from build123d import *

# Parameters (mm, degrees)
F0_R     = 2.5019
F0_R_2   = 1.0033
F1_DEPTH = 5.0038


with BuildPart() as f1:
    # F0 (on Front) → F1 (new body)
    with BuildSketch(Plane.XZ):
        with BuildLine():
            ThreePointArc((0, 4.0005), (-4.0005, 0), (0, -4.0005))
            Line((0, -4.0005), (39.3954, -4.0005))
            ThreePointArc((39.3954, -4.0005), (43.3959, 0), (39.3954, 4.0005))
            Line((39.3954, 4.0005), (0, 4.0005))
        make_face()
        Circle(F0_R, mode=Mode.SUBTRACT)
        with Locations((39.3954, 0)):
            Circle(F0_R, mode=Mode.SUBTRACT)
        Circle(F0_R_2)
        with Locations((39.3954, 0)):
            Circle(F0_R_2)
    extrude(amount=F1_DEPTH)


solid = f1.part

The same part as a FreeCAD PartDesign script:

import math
import FreeCAD as App
import Part
import Sketcher
from FreeCAD import Vector
Q = App.Units.Quantity

doc = App.newDocument("Part")
body = doc.addObject("PartDesign::Body", "Body")
body.AllowCompound = True

# Sketch on XZ plane
sketch1 = doc.addObject("Sketcher::SketchObject", "Sketch")
body.addObject(sketch1)
sketch1.AttachmentSupport = (doc.XZ_Plane, [""])
sketch1.MapMode = "FlatFace"
sketch1.addGeometry([
    Part.ArcOfCircle(Part.Circle(Vector(0, 0, 0), Vector(0, 0, 1), 4.0005), math.radians(90), math.radians(270)),  # 0
    Part.LineSegment(Vector(0, -4.0005, 0), Vector(39.3954, -4.0005, 0)),  # 1
    Part.ArcOfCircle(Part.Circle(Vector(39.3954, 0, 0), Vector(0, 0, 1), 4.0005), math.radians(-90), math.radians(90)),  # 2
    Part.LineSegment(Vector(39.3954, 4.0005, 0), Vector(0, 4.0005, 0)),  # 3
    Part.Circle(Vector(0, 0, 0), Vector(0, 0, 1), 2.5019),  # 4
    Part.Circle(Vector(39.3954, 0, 0), Vector(0, 0, 1), 2.5019),  # 5
    Part.Circle(Vector(0, 0, 0), Vector(0, 0, 1), 1.0033),  # 6
    Part.Circle(Vector(39.3954, 0, 0), Vector(0, 0, 1), 1.0033),  # 7
], False)
sketch1.addConstraint([
    Sketcher.Constraint("Tangent", 0, 2, 1, 1),
    Sketcher.Constraint("Tangent", 1, 2, 2, 1),
    Sketcher.Constraint("Tangent", 2, 2, 3, 1),
    Sketcher.Constraint("Tangent", 3, 2, 0, 1),
    Sketcher.Constraint("Horizontal", 1),
    Sketcher.Constraint("Horizontal", 3),
    Sketcher.Constraint("Coincident", 0, 3, -1, 1),
    Sketcher.Constraint("Coincident", 4, 3, -1, 1),
    Sketcher.Constraint("Coincident", 6, 3, -1, 1),
    Sketcher.Constraint("Coincident", 5, 3, 2, 3),
    Sketcher.Constraint("Coincident", 7, 3, 2, 3),
    Sketcher.Constraint("Equal", 4, 5),
    Sketcher.Constraint("Equal", 6, 7),
    Sketcher.Constraint("Diameter", 4, Q("0.197 in")),
    Sketcher.Constraint("Diameter", 6, Q("0.079 in")),
    Sketcher.Constraint("Radius", 0, Q("0.1575 in")),
    Sketcher.Constraint("DistanceX", 1, 1, 1, 2, Q("1.551 in")),
])
pad1 = doc.addObject("PartDesign::Pad", "Pad")
body.addObject(pad1)
pad1.Profile = sketch1
pad1.Length = Q("0.197 in")

doc.recompute()
